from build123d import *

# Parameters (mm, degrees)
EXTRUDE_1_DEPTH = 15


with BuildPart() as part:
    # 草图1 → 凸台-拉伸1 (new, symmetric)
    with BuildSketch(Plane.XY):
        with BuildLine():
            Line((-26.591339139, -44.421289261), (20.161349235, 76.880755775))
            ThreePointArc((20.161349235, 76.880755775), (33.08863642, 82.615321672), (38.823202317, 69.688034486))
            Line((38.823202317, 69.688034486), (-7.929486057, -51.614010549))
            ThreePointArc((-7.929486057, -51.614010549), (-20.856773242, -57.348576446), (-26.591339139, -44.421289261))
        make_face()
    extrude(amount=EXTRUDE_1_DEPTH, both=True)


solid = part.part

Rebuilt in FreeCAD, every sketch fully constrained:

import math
import FreeCAD as App
import Part
import Sketcher

V = App.Vector

doc = App.newDocument("Part")
body = doc.addObject("PartDesign::Body", "Body")

# Sketch on XY plane
sketch1 = body.newObject("Sketcher::SketchObject", "Sketch")
sketch1.AttachmentSupport = (doc.getObject("XY_Plane"), [""])
sketch1.MapMode = "FlatFace"
sketch1.addGeometry(Part.LineSegment(V(20, 77, 0), V(-27, -44, 0)), False)
sketch1.addGeometry(Part.ArcOfCircle(Part.Circle(V(-17, -48, 0), V(0, 0, 1), 10), math.radians(159), math.radians(339)), False)
sketch1.addGeometry(Part.LineSegment(V(-8, -52, 0), V(39, 70, 0)), False)
sketch1.addGeometry(Part.ArcOfCircle(Part.Circle(V(29, 73, 0), V(0, 0, 1), 10), math.radians(-21), math.radians(159)), False)
sketch1.addConstraint(Sketcher.Constraint("Tangent", 0, 2, 1, 1))
sketch1.addConstraint(Sketcher.Constraint("Tangent", 1, 2, 2, 1))
sketch1.addConstraint(Sketcher.Constraint("Tangent", 2, 2, 3, 1))
sketch1.addConstraint(Sketcher.Constraint("Tangent", 3, 2, 0, 1))
sketch1.addConstraint(Sketcher.Constraint("Equal", 1, 3))
sketch1.addConstraint(Sketcher.Constraint("Radius", 1, 10.0))
sketch1.addConstraint(Sketcher.Constraint("Distance", 0, 130.0))
sketch1.addConstraint(Sketcher.Constraint("DistanceY", 1, 3, -1, 1, 48.01765))
sketch1.addConstraint(Sketcher.Constraint("DistanceX", 0, 2, -1, 1, 26.591339))
sketch1.addConstraint(Sketcher.Constraint("DistanceY", 0, 2, -1, 1, 44.421289))
pad1 = body.newObject("PartDesign::Pad", "Pad")
pad1.Profile = sketch1
pad1.Length = 30
pad1.Midplane = True

doc.recompute()
